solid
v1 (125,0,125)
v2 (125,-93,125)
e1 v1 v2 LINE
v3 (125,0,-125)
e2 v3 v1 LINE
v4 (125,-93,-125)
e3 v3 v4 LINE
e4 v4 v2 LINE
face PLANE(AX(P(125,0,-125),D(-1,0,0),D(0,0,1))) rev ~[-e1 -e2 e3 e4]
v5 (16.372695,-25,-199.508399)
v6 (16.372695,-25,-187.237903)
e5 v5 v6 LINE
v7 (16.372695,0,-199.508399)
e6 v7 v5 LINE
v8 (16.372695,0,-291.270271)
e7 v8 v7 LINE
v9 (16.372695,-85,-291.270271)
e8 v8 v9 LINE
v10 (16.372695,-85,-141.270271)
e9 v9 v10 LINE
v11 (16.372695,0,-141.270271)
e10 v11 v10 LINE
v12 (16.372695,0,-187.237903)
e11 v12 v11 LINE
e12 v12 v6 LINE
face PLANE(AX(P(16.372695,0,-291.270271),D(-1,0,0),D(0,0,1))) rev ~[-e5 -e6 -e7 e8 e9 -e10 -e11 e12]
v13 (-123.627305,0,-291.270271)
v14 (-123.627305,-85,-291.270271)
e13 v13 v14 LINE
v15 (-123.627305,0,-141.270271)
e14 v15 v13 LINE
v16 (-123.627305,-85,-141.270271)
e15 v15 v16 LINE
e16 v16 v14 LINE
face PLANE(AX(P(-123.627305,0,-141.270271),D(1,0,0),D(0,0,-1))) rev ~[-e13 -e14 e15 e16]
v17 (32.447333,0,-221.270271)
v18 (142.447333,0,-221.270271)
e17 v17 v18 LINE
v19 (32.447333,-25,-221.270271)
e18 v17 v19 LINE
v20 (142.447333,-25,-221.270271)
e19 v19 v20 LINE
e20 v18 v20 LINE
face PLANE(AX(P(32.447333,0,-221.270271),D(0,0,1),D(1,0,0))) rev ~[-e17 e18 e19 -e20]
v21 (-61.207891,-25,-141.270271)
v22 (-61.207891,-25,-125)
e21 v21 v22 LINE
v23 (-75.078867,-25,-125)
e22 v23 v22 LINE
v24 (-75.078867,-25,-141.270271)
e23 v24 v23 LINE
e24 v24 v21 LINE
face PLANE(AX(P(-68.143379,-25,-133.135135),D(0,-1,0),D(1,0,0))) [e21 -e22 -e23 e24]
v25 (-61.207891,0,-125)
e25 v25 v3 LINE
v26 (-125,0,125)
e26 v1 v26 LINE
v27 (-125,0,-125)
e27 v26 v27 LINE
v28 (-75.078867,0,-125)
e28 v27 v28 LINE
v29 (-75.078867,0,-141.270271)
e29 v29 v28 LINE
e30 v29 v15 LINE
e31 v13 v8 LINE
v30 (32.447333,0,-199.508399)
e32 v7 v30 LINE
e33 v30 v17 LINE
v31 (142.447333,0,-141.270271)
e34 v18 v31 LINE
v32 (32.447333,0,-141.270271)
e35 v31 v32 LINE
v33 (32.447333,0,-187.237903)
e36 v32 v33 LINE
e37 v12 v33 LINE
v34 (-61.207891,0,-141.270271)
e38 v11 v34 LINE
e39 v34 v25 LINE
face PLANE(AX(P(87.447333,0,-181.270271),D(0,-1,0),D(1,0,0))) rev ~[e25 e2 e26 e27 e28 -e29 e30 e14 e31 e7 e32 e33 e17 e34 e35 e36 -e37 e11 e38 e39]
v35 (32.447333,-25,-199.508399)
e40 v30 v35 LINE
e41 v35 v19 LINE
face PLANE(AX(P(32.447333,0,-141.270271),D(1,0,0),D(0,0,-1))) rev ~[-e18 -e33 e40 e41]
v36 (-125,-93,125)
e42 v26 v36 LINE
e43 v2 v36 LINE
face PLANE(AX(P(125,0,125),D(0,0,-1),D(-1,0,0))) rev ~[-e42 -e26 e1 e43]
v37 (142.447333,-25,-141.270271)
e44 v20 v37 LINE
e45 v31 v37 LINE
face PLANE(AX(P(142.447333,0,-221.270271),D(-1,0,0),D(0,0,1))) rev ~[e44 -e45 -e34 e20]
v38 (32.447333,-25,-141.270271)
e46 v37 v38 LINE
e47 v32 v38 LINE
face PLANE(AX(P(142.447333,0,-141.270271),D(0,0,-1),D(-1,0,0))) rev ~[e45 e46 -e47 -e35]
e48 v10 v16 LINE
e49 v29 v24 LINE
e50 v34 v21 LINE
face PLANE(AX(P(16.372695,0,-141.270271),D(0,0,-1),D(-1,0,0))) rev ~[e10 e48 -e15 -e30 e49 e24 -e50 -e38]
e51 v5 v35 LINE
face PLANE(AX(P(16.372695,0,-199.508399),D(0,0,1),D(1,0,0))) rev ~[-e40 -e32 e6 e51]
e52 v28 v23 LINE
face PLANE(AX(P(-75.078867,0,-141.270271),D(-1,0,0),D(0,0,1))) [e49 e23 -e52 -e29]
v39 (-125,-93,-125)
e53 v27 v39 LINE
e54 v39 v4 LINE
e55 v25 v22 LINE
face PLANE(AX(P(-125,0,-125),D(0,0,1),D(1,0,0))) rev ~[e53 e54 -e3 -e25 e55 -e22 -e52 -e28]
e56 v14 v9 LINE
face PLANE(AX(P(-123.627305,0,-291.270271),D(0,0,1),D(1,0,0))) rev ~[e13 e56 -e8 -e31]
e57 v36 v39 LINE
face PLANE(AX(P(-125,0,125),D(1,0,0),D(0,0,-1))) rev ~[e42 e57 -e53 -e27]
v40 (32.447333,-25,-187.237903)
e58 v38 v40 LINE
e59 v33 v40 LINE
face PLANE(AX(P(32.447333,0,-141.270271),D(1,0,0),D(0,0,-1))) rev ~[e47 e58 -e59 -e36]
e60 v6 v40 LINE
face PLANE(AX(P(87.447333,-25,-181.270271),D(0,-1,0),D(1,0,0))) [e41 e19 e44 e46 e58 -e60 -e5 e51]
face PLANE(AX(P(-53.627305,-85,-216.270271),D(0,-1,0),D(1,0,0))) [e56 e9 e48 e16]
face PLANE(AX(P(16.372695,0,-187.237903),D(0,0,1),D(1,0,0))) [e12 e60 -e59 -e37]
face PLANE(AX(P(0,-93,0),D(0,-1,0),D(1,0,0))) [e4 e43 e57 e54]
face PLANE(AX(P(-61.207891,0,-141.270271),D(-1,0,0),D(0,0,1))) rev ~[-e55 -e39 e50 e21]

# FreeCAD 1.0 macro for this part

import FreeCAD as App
import Part
import Sketcher
Q = App.Units.Quantity


def add_polygon(sketch, points):
    """Adds a closed chain of lines whose ends are joined by coincident constraints."""
    first, n = sketch.GeometryCount, len(points)
    for a, b in zip(points, points[1:] + points[:1]):
        sketch.addGeometry(Part.LineSegment(App.Vector(*a, 0), App.Vector(*b, 0)), False)
    for i in range(n):
        sketch.addConstraint(Sketcher.Constraint("Coincident", first + i, 2, first + (i + 1) % n, 1))

doc = App.newDocument("Part")
params = doc.addObject("Spreadsheet::Sheet", "Params")
for row, (alias, value) in enumerate([
    ("sketch1_width", "140 mm"),
    ("sketch1_height", "150 mm"),
    ("pad1_length", "85 mm"),
    ("pad2_length", "25 mm"),
    ("sketch3_width", "250 mm"),
    ("pad3_length", "93 mm"),
    ("sketch4_width", "110 mm"),
    ("sketch4_height", "80 mm"),
    ("pad4_length", "25 mm"),
], start=1):
    params.set(f"A{row}", alias)
    params.set(f"B{row}", "=" + value)
    params.setAlias(f"B{row}", alias)

body = doc.addObject("PartDesign::Body", "Body")

# Sketch on XZ plane
sketch1 = body.newObject("Sketcher::SketchObject", "Sketch")
sketch1.AttachmentSupport = (doc.getObject("XZ_Plane"), [""])
sketch1.MapMode = "FlatFace"
add_polygon(sketch1, [(-124, -141), (-124, -291), (16, -291), (16, -141)])  # lines 0-3
sketch1.addConstraint(Sketcher.Constraint("Vertical", 0))
sketch1.addConstraint(Sketcher.Constraint("Horizontal", 1))
sketch1.addConstraint(Sketcher.Constraint("Vertical", 2))
sketch1.addConstraint(Sketcher.Constraint("Horizontal", 3))
sketch1.addConstraint(Sketcher.Constraint("DistanceX", 1, 1, 1, 2, Q("140 mm")))
sketch1.addConstraint(Sketcher.Constraint("DistanceY", 0, 2, 0, 1, Q("150 mm")))
sketch1.addConstraint(Sketcher.Constraint("DistanceY", 0, 2, -1, 1, Q("291.270271 mm")))
sketch1.addConstraint(Sketcher.Constraint("DistanceX", 0, 2, -1, 1, Q("123.627305 mm")))
sketch1.setExpression("Constraints[8]", "Params.sketch1_width")
sketch1.setExpression("Constraints[9]", "Params.sketch1_height")
pad1 = body.newObject("PartDesign::Pad", "Pad")
pad1.Profile = sketch1
pad1.setExpression("Length", "Params.pad1_length")

# Sketch on XZ plane
sketch2 = body.newObject("Sketcher::SketchObject", "Sketch001")
sketch2.AttachmentSupport = (doc.getObject("XZ_Plane"), [""])
sketch2.MapMode = "FlatFace"
add_polygon(sketch2, [(-75, -125), (-75, -141), (-61, -141), (-61, -125)])  # lines 0-3
add_polygon(sketch2, [(16, -187), (16, -200), (32, -200), (32, -187)])  # lines 4-7
sketch2.addConstraint(Sketcher.Constraint("Vertical", 0))
sketch2.addConstraint(Sketcher.Constraint("Horizontal", 1))
sketch2.addConstraint(Sketcher.Constraint("Vertical", 2))
sketch2.addConstraint(Sketcher.Constraint("Horizontal", 3))
sketch2.addConstraint(Sketcher.Constraint("Vertical", 4))
sketch2.addConstraint(Sketcher.Constraint("Horizontal", 5))
sketch2.addConstraint(Sketcher.Constraint("Vertical", 6))
sketch2.addConstraint(Sketcher.Constraint("Horizontal", 7))
sketch2.addConstraint(Sketcher.Constraint("DistanceY", 2, 2, -1, 1, Q("125 mm")))
sketch2.addConstraint(Sketcher.Constraint("DistanceY", 0, 2, 0, 1, Q("16.270271 mm")))
sketch2.addConstraint(Sketcher.Constraint("DistanceY", 4, 2, -1, 1, Q("199.508399 mm")))
sketch2.addConstraint(Sketcher.Constraint("DistanceX", 0, 2, 5, 2, Q("107.5262 mm")))
sketch2.addConstraint(Sketcher.Constraint("DistanceX", 1, 1, 1, 2, Q("13.870977 mm")))
sketch2.addConstraint(Sketcher.Constraint("DistanceX", 5, 1, 5, 2, Q("16.074638 mm")))
sketch2.addConstraint(Sketcher.Constraint("DistanceY", 4, 2, 4, 1, Q("12.270495 mm")))
sketch2.addConstraint(Sketcher.Constraint("DistanceX", 1, 2, -1, 1, Q("61.207891 mm")))
pad2 = body.newObject("PartDesign::Pad", "Pad001")
pad2.Profile = sketch2
pad2.setExpression("Length", "Params.pad2_length")

# Sketch on XZ plane
sketch3 = body.newObject("Sketcher::SketchObject", "Sketch002")
sketch3.AttachmentSupport = (doc.getObject("XZ_Plane"), [""])
sketch3.MapMode = "FlatFace"
add_polygon(sketch3, [(125, 125), (-125, 125), (-125, -125), (125, -125)])  # lines 0-3
sketch3.addConstraint(Sketcher.Constraint("Horizontal", 0))
sketch3.addConstraint(Sketcher.Constraint("Vertical", 1))
sketch3.addConstraint(Sketcher.Constraint("Horizontal", 2))
sketch3.addConstraint(Sketcher.Constraint("Vertical", 3))
sketch3.addConstraint(Sketcher.Constraint("Symmetric", 0, 2, 2, 2, -1, 1))
sketch3.addConstraint(Sketcher.Constraint("Equal", 2, 1))
sketch3.addConstraint(Sketcher.Constraint("DistanceX", 0, 2, 0, 1, Q("250 mm")))
sketch3.setExpression("Constraints[10]", "Params.sketch3_width")
pad3 = body.newObject("PartDesign::Pad", "Pad002")
pad3.Profile = sketch3
pad3.setExpression("Length", "Params.pad3_length")

# Sketch on XZ plane
sketch4 = body.newObject("Sketcher::SketchObject", "Sketch003")
sketch4.AttachmentSupport = (doc.getObject("XZ_Plane"), [""])
sketch4.MapMode = "FlatFace"
add_polygon(sketch4, [(32, -141), (32, -221), (142, -221), (142, -141)])  # lines 0-3
sketch4.addConstraint(Sketcher.Constraint("Vertical", 0))
sketch4.addConstraint(Sketcher.Constraint("Horizontal", 1))
sketch4.addConstraint(Sketcher.Constraint("Vertical", 2))
sketch4.addConstraint(Sketcher.Constraint("Horizontal", 3))
sketch4.addConstraint(Sketcher.Constraint("DistanceX", 1, 1, 1, 2, Q("110 mm")))
sketch4.addConstraint(Sketcher.Constraint("DistanceY", 0, 2, 0, 1, Q("80 mm")))
sketch4.addConstraint(Sketcher.Constraint("DistanceY", 0, 2, -1, 1, Q("221.270271 mm")))
sketch4.addConstraint(Sketcher.Constraint("DistanceX", -1, 1, 0, 2, Q("32.447333 mm")))
sketch4.setExpression("Constraints[8]", "Params.sketch4_width")
sketch4.setExpression("Constraints[9]", "Params.sketch4_height")
pad4 = body.newObject("PartDesign::Pad", "Pad003")
pad4.Profile = sketch4
pad4.setExpression("Length", "Params.pad4_length")

doc.recompute()
